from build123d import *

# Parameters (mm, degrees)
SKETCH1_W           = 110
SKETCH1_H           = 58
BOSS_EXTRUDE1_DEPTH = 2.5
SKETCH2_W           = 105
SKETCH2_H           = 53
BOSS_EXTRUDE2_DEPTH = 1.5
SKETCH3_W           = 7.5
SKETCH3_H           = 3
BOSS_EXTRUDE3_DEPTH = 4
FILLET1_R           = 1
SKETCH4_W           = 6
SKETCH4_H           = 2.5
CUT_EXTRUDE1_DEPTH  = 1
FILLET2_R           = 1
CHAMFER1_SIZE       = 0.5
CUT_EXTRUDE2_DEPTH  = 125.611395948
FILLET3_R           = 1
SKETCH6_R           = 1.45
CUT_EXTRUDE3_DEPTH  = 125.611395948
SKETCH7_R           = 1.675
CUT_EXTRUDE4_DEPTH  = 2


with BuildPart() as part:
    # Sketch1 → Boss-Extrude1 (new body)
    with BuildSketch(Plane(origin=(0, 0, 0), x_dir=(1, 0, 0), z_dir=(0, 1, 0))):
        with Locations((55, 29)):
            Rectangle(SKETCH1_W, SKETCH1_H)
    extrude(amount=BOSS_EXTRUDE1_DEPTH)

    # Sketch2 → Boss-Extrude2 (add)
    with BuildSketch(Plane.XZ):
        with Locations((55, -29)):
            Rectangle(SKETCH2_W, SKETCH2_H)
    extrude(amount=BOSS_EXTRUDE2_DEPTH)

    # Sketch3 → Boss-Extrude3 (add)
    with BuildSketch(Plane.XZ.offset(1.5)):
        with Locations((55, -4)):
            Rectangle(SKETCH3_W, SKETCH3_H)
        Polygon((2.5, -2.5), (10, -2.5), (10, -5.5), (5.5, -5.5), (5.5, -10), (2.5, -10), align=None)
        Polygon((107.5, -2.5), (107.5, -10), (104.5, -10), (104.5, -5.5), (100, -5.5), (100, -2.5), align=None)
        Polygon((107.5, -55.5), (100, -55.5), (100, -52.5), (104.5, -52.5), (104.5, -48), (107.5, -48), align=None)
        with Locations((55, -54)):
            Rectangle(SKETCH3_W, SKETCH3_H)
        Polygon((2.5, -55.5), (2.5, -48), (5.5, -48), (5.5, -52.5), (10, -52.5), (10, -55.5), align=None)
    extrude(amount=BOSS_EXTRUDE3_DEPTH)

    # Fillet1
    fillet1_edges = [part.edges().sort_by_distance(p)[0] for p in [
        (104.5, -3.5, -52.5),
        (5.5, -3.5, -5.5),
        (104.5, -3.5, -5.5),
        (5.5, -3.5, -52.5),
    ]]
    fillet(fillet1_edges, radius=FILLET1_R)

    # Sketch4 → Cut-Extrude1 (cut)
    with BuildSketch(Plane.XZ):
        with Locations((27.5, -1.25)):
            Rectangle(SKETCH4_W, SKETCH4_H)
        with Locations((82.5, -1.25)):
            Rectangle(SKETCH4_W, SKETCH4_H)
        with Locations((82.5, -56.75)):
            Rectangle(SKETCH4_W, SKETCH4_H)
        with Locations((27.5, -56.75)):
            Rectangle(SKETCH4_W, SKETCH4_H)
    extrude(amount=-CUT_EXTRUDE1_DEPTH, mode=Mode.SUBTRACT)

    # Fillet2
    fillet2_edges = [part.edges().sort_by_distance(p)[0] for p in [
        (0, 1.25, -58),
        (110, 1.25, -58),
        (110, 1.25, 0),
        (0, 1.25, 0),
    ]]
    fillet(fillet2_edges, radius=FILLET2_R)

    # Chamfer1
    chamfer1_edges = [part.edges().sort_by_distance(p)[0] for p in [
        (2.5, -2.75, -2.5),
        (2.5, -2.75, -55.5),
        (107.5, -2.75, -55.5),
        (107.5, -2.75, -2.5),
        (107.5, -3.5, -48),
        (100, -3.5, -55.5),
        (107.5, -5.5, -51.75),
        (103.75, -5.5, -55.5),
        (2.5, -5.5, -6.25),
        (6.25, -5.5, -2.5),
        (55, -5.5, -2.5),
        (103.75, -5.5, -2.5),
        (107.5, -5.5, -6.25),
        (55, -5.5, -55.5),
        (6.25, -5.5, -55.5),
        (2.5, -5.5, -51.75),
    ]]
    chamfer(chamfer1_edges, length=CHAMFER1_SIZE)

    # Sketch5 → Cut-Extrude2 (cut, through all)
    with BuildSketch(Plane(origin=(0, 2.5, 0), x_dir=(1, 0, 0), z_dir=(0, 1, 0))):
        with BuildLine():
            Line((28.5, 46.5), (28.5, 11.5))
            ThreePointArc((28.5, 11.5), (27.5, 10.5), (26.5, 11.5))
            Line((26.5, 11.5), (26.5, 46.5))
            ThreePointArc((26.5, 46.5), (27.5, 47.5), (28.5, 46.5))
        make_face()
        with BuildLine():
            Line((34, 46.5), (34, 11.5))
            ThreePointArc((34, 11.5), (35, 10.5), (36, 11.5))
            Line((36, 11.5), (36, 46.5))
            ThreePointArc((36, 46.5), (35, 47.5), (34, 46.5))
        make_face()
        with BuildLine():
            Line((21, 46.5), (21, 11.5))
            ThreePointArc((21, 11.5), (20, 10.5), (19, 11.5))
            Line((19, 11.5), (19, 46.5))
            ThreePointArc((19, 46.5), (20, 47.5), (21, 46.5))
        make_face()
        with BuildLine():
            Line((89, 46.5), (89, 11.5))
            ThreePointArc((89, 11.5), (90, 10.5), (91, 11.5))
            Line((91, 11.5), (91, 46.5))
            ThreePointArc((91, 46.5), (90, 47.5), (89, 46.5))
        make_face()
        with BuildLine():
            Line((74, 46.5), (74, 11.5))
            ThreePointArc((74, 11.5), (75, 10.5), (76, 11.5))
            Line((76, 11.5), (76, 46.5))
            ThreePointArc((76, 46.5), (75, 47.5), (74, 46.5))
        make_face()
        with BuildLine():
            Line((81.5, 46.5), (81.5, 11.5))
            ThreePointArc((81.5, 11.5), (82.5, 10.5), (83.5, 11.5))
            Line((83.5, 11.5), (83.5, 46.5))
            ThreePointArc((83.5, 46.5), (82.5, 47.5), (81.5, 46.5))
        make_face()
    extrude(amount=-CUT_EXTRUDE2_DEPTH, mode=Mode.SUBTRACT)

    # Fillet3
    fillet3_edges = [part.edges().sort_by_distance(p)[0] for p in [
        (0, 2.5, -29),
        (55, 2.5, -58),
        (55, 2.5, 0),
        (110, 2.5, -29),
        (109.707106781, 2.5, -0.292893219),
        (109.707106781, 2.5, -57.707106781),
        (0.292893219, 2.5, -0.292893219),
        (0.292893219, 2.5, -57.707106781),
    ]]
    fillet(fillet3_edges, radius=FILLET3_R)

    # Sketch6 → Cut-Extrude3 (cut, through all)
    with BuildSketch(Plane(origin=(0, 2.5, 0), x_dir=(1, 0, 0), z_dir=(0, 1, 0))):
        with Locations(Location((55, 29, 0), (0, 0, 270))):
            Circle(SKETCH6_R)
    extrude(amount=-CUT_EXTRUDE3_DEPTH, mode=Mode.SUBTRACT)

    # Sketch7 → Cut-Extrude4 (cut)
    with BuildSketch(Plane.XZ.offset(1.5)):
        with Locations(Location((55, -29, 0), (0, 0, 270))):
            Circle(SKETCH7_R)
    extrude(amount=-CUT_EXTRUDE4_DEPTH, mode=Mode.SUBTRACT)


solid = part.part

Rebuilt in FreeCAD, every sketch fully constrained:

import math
import FreeCAD as App
import Part
import Sketcher

V = App.Vector
Q = App.Units.Quantity


def edges_at(feature, points):
    """Names of the edges that pass closest to the given points."""
    edges = feature.Shape.Edges
    near = lambda p: min(range(len(edges)), key=lambda i: edges[i].distToShape(Part.Vertex(*p))[0])
    return sorted({f"Edge{near(p) + 1}" for p in points})


def add_polygon(sketch, points):
    """Adds a closed chain of lines whose ends are joined by coincident constraints."""
    first, n = sketch.GeometryCount, len(points)
    for a, b in zip(points, points[1:] + points[:1]):
        sketch.addGeometry(Part.LineSegment(App.Vector(*a, 0), App.Vector(*b, 0)), False)
    for i in range(n):
        sketch.addConstraint(Sketcher.Constraint("Coincident", first + i, 2, first + (i + 1) % n, 1))

doc = App.newDocument("Part")
body = doc.addObject("PartDesign::Body", "Body")

# Sketch on XZ plane
sketch1 = body.newObject("Sketcher::SketchObject", "Sketch")
sketch1.AttachmentSupport = (doc.getObject("XZ_Plane"), [""])
sketch1.MapMode = "FlatFace"
add_polygon(sketch1, [(0, -58), (0, 0), (110, 0), (110, -58)])  # lines 0-3
sketch1.addConstraint(Sketcher.Constraint("Vertical", 0))
sketch1.addConstraint(Sketcher.Constraint("Horizontal", 1))
sketch1.addConstraint(Sketcher.Constraint("Vertical", 2))
sketch1.addConstraint(Sketcher.Constraint("Horizontal", 3))
sketch1.addConstraint(Sketcher.Constraint("Coincident", 0, 2, -1, 1))
sketch1.addConstraint(Sketcher.Constraint("DistanceX", 1, 1, 1, 2, Q("110 mm")))
sketch1.addConstraint(Sketcher.Constraint("DistanceY", 0, 1, 0, 2, Q("58 mm")))
pad1 = body.newObject("PartDesign::Pad", "Pad")
pad1.Profile = sketch1
pad1.Length = 2.5
pad1.Reversed = True

# Sketch on XZ plane
sketch2 = body.newObject("Sketcher::SketchObject", "Sketch001")
sketch2.AttachmentSupport = (doc.getObject("XZ_Plane"), [""])
sketch2.MapMode = "FlatFace"
add_polygon(sketch2, [(2, -2), (2, -56), (108, -56), (108, -2)])  # lines 0-3
sketch2.addConstraint(Sketcher.Constraint("Vertical", 0))
sketch2.addConstraint(Sketcher.Constraint("Horizontal", 1))
sketch2.addConstraint(Sketcher.Constraint("Vertical", 2))
sketch2.addConstraint(Sketcher.Constraint("Horizontal", 3))
sketch2.addConstraint(Sketcher.Constraint("DistanceX", 1, 1, 1, 2, Q("105 mm")))
sketch2.addConstraint(Sketcher.Constraint("DistanceY", 0, 2, 0, 1, Q("53 mm")))
sketch2.addConstraint(Sketcher.Constraint("DistanceX", -1, 1, 0, 2, Q("2.5 mm")))
sketch2.addConstraint(Sketcher.Constraint("DistanceY", 0, 2, -1, 1, Q("55.5 mm")))
pad2 = body.newObject("PartDesign::Pad", "Pad001")
pad2.Profile = sketch2
pad2.Length = 1.5

# Sketch on XZ plane
sketch3 = body.newObject("Sketcher::SketchObject", "Sketch002")
sketch3.AttachmentSupport = (doc.getObject("XZ_Plane"), [""])
sketch3.MapMode = "FlatFace"
sketch3.AttachmentOffset = App.Placement(V(0, 0, 1.5), App.Rotation())
add_polygon(sketch3, [(51.2, -2.5), (51.2, -5.5), (58.8, -5.5), (58.8, -2.5)])  # lines 0-3
add_polygon(sketch3, [(10, -2.5), (2.5, -2.5), (2.5, -10), (5.5, -10), (5.5, -5.5), (10, -5.5)])  # lines 4-9
add_polygon(sketch3, [(107.5, -10), (107.5, -2.5), (100, -2.5), (100, -5.5), (104.5, -5.5), (104.5, -10)])  # lines 10-15
add_polygon(sketch3, [(100, -55.5), (107.5, -55.5), (107.5, -48), (104.5, -48), (104.5, -52.5), (100, -52.5)])  # lines 16-21
add_polygon(sketch3, [(51.2, -52.5), (51.2, -55.5), (58.8, -55.5), (58.8, -52.5)])  # lines 22-25
add_polygon(sketch3, [(2.5, -48), (2.5, -55.5), (10, -55.5), (10, -52.5), (5.5, -52.5), (5.5, -48)])  # lines 26-31
sketch3.addConstraint(Sketcher.Constraint("Vertical", 0))
sketch3.addConstraint(Sketcher.Constraint("Horizontal", 1))
sketch3.addConstraint(Sketcher.Constraint("Vertical", 2))
sketch3.addConstraint(Sketcher.Constraint("Horizontal", 3))
sketch3.addConstraint(Sketcher.Constraint("Horizontal", 4))
sketch3.addConstraint(Sketcher.Constraint("Vertical", 5))
sketch3.addConstraint(Sketcher.Constraint("Horizontal", 6))
sketch3.addConstraint(Sketcher.Constraint("Vertical", 7))
sketch3.addConstraint(Sketcher.Constraint("Horizontal", 8))
sketch3.addConstraint(Sketcher.Constraint("Vertical", 9))
sketch3.addConstraint(Sketcher.Constraint("Vertical", 10))
sketch3.addConstraint(Sketcher.Constraint("Horizontal", 11))
sketch3.addConstraint(Sketcher.Constraint("Vertical", 12))
sketch3.addConstraint(Sketcher.Constraint("Horizontal", 13))
sketch3.addConstraint(Sketcher.Constraint("Vertical", 14))
sketch3.addConstraint(Sketcher.Constraint("Horizontal", 15))
sketch3.addConstraint(Sketcher.Constraint("Horizontal", 16))
sketch3.addConstraint(Sketcher.Constraint("Vertical", 17))
sketch3.addConstraint(Sketcher.Constraint("Horizontal", 18))
sketch3.addConstraint(Sketcher.Constraint("Vertical", 19))
sketch3.addConstraint(Sketcher.Constraint("Horizontal", 20))
sketch3.addConstraint(Sketcher.Constraint("Vertical", 21))
sketch3.addConstraint(Sketcher.Constraint("Vertical", 22))
sketch3.addConstraint(Sketcher.Constraint("Horizontal", 23))
sketch3.addConstraint(Sketcher.Constraint("Vertical", 24))
sketch3.addConstraint(Sketcher.Constraint("Horizontal", 25))
sketch3.addConstraint(Sketcher.Constraint("Vertical", 26))
sketch3.addConstraint(Sketcher.Constraint("Horizontal", 27))
sketch3.addConstraint(Sketcher.Constraint("Vertical", 28))
sketch3.addConstraint(Sketcher.Constraint("Horizontal", 29))
sketch3.addConstraint(Sketcher.Constraint("Vertical", 30))
sketch3.addConstraint(Sketcher.Constraint("Horizontal", 31))
sketch3.addConstraint(Sketcher.Constraint("Horizontal", 3, 2, 4, 2))
sketch3.addConstraint(Sketcher.Constraint("Horizontal", 1, 2, 7, 2))
sketch3.addConstraint(Sketcher.Constraint("Horizontal", 9, 2, 10, 2))
sketch3.addConstraint(Sketcher.Constraint("Horizontal", 8, 2, 12, 2))
sketch3.addConstraint(Sketcher.Constraint("Horizontal", 6, 2, 14, 2))
sketch3.addConstraint(Sketcher.Constraint("Horizontal", 21, 2, 22, 2))
sketch3.addConstraint(Sketcher.Constraint("Horizontal", 20, 2, 24, 2))
sketch3.addConstraint(Sketcher.Constraint("Horizontal", 23, 2, 26, 2))
sketch3.addConstraint(Sketcher.Constraint("Horizontal", 25, 2, 28, 2))
sketch3.addConstraint(Sketcher.Constraint("Horizontal", 18, 2, 30, 2))
sketch3.addConstraint(Sketcher.Constraint("Vertical", 15, 2, 16, 2))
sketch3.addConstraint(Sketcher.Constraint("Vertical", 14, 2, 18, 2))
sketch3.addConstraint(Sketcher.Constraint("Vertical", 12, 2, 20, 2))
sketch3.addConstraint(Sketcher.Constraint("Vertical", 3, 2, 22, 2))
sketch3.addConstraint(Sketcher.Constraint("Vertical", 2, 2, 23, 2))
sketch3.addConstraint(Sketcher.Constraint("Vertical", 5, 2, 26, 2))
sketch3.addConstraint(Sketcher.Constraint("Vertical", 9, 2, 27, 2))
sketch3.addConstraint(Sketcher.Constraint("Vertical", 7, 2, 29, 2))
sketch3.addConstraint(Sketcher.Constraint("Equal", 3, 4))
sketch3.addConstraint(Sketcher.Constraint("Equal", 4, 11))
sketch3.addConstraint(Sketcher.Constraint("Equal", 8, 13))
sketch3.addConstraint(Sketcher.Constraint("Equal", 31, 0))
sketch3.addConstraint(Sketcher.Constraint("Equal", 27, 5))
sketch3.addConstraint(Sketcher.Constraint("Equal", 10, 17))
sketch3.addConstraint(Sketcher.Constraint("Equal", 14, 19))
sketch3.addConstraint(Sketcher.Constraint("DistanceX", 6, 1, 6, 2, Q("3 mm")))
sketch3.addConstraint(Sketcher.Constraint("DistanceX", 1, 1, 1, 2, Q("7.5 mm")))
sketch3.addConstraint(Sketcher.Constraint("DistanceY", 5, 2, -1, 1, Q("10 mm")))
sketch3.addConstraint(Sketcher.Constraint("DistanceX", -1, 1, 8, 2, Q("10 mm")))
sketch3.addConstraint(Sketcher.Constraint("DistanceX", -1, 1, 11, 2, Q("100 mm")))
sketch3.addConstraint(Sketcher.Constraint("DistanceY", 17, 2, -1, 1, Q("48 mm")))
sketch3.addConstraint(Sketcher.Constraint("DistanceX", -1, 1, 0, 2, Q("51.25 mm")))
pad3 = body.newObject("PartDesign::Pad", "Pad002")
pad3.Profile = sketch3
pad3.Length = 4
doc.recompute()

fillet = body.newObject("PartDesign::Fillet", "Fillet")
fillet.Base = (pad3, edges_at(pad3, [
    (104.5, -3.5, -52.5),
    (5.5, -3.5, -5.5),
    (104.5, -3.5, -5.5),
    (5.5, -3.5, -52.5),
]))
fillet.Radius = 1

# Sketch on XZ plane
sketch4 = body.newObject("Sketcher::SketchObject", "Sketch003")
sketch4.AttachmentSupport = (doc.getObject("XZ_Plane"), [""])
sketch4.MapMode = "FlatFace"
add_polygon(sketch4, [(24.5, 0), (24.5, -2.5), (30.5, -2.5), (30.5, 0)])  # lines 0-3
add_polygon(sketch4, [(79.5, 0), (79.5, -2.5), (85.5, -2.5), (85.5, 0)])  # lines 4-7
add_polygon(sketch4, [(79.5, -55.5), (79.5, -58), (85.5, -58), (85.5, -55.5)])  # lines 8-11
add_polygon(sketch4, [(24.5, -55.5), (24.5, -58), (30.5, -58), (30.5, -55.5)])  # lines 12-15
sketch4.addConstraint(Sketcher.Constraint("Vertical", 0))
sketch4.addConstraint(Sketcher.Constraint("Horizontal", 1))
sketch4.addConstraint(Sketcher.Constraint("Vertical", 2))
sketch4.addConstraint(Sketcher.Constraint("Horizontal", 3))
sketch4.addConstraint(Sketcher.Constraint("Vertical", 4))
sketch4.addConstraint(Sketcher.Constraint("Horizontal", 5))
sketch4.addConstraint(Sketcher.Constraint("Vertical", 6))
sketch4.addConstraint(Sketcher.Constraint("Horizontal", 7))
sketch4.addConstraint(Sketcher.Constraint("Vertical", 8))
sketch4.addConstraint(Sketcher.Constraint("Horizontal", 9))
sketch4.addConstraint(Sketcher.Constraint("Vertical", 10))
sketch4.addConstraint(Sketcher.Constraint("Horizontal", 11))
sketch4.addConstraint(Sketcher.Constraint("Vertical", 12))
sketch4.addConstraint(Sketcher.Constraint("Horizontal", 13))
sketch4.addConstraint(Sketcher.Constraint("Vertical", 14))
sketch4.addConstraint(Sketcher.Constraint("Horizontal", 15))
sketch4.addConstraint(Sketcher.Constraint("PointOnObject", 2, 2, -1))
sketch4.addConstraint(Sketcher.Constraint("PointOnObject", 6, 2, -1))
sketch4.addConstraint(Sketcher.Constraint("Horizontal", 1, 2, 4, 2))
sketch4.addConstraint(Sketcher.Constraint("Horizontal", 9, 2, 12, 2))
sketch4.addConstraint(Sketcher.Constraint("Horizontal", 11, 2, 14, 2))
sketch4.addConstraint(Sketcher.Constraint("Vertical", 7, 2, 8, 2))
sketch4.addConstraint(Sketcher.Constraint("Vertical", 6, 2, 9, 2))
sketch4.addConstraint(Sketcher.Constraint("Vertical", 3, 2, 12, 2))
sketch4.addConstraint(Sketcher.Constraint("Vertical", 2, 2, 13, 2))
sketch4.addConstraint(Sketcher.Constraint("Equal", 3, 5))
sketch4.addConstraint(Sketcher.Constraint("Equal", 6, 8))
sketch4.addConstraint(Sketcher.Constraint("DistanceX", 1, 1, 1, 2, Q("6 mm")))
sketch4.addConstraint(Sketcher.Constraint("DistanceY", 0, 2, 0, 1, Q("2.5 mm")))
sketch4.addConstraint(Sketcher.Constraint("DistanceY", 8, 2, -1, 1, Q("58 mm")))
sketch4.addConstraint(Sketcher.Constraint("DistanceX", 1, 2, 4, 2, Q("49 mm")))
sketch4.addConstraint(Sketcher.Constraint("DistanceX", -1, 1, 0, 2, Q("24.5 mm")))
pocket1 = body.newObject("PartDesign::Pocket", "Pocket")
pocket1.Profile = sketch4
pocket1.Length = 1
doc.recompute()

fillet2 = body.newObject("PartDesign::Fillet", "Fillet001")
fillet2.Base = (pocket1, edges_at(pocket1, [
    (0, 1.25, -58),
    (110, 1.25, -58),
    (110, 1.25, 0),
    (0, 1.25, 0),
]))
fillet2.Radius = 1
doc.recompute()

chamfer = body.newObject("PartDesign::Chamfer", "Chamfer")
chamfer.Base = (fillet2, edges_at(fillet2, [
    (2.5, -2.75, -2.5),
    (2.5, -2.75, -55.5),
    (107.5, -2.75, -55.5),
    (107.5, -2.75, -2.5),
    (107.5, -3.5, -48),
    (100, -3.5, -55.5),
    (107.5, -5.5, -51.75),
    (103.75, -5.5, -55.5),
    (2.5, -5.5, -6.25),
    (6.25, -5.5, -2.5),
    (55, -5.5, -2.5),
    (103.75, -5.5, -2.5),
    (107.5, -5.5, -6.25),
    (55, -5.5, -55.5),
    (6.25, -5.5, -55.5),
    (2.5, -5.5, -51.75),
]))
chamfer.Size = 0.5

# Sketch on XZ plane
sketch5 = body.newObject("Sketcher::SketchObject", "Sketch004")
sketch5.AttachmentSupport = (doc.getObject("XZ_Plane"), [""])
sketch5.MapMode = "FlatFace"
sketch5.AttachmentOffset = App.Placement(V(0, 0, -2.5), App.Rotation())
sketch5.addGeometry(Part.LineSegment(V(28.5, -11.5, 0), V(28.5, -46.5, 0)), False)
sketch5.addGeometry(Part.ArcOfCircle(Part.Circle(V(27.5, -46.5, 0), V(0, 0, 1), 1), math.radians(180), math.radians(360)), False)
sketch5.addGeometry(Part.LineSegment(V(26.5, -46.5, 0), V(26.5, -11.5, 0)), False)
sketch5.addGeometry(Part.ArcOfCircle(Part.Circle(V(27.5, -11.5, 0), V(0, 0, 1), 1), math.radians(0), math.radians(180)), False)
sketch5.addGeometry(Part.LineSegment(V(34, -46.5, 0), V(34, -11.5, 0)), False)
sketch5.addGeometry(Part.ArcOfCircle(Part.Circle(V(35, -11.5, 0), V(0, 0, 1), 1), math.radians(0), math.radians(180)), False)
sketch5.addGeometry(Part.LineSegment(V(36, -11.5, 0), V(36, -46.5, 0)), False)
sketch5.addGeometry(Part.ArcOfCircle(Part.Circle(V(35, -46.5, 0), V(0, 0, 1), 1), math.radians(180), math.radians(360)), False)
sketch5.addGeometry(Part.LineSegment(V(21, -11.5, 0), V(21, -46.5, 0)), False)
sketch5.addGeometry(Part.ArcOfCircle(Part.Circle(V(20, -46.5, 0), V(0, 0, 1), 1), math.radians(180), math.radians(360)), False)
sketch5.addGeometry(Part.LineSegment(V(19, -46.5, 0), V(19, -11.5, 0)), False)
sketch5.addGeometry(Part.ArcOfCircle(Part.Circle(V(20, -11.5, 0), V(0, 0, 1), 1), math.radians(0), math.radians(180)), False)
sketch5.addGeometry(Part.LineSegment(V(89, -46.5, 0), V(89, -11.5, 0)), False)
sketch5.addGeometry(Part.ArcOfCircle(Part.Circle(V(90, -11.5, 0), V(0, 0, 1), 1), math.radians(0), math.radians(180)), False)
sketch5.addGeometry(Part.LineSegment(V(91, -11.5, 0), V(91, -46.5, 0)), False)
sketch5.addGeometry(Part.ArcOfCircle(Part.Circle(V(90, -46.5, 0), V(0, 0, 1), 1), math.radians(180), math.radians(360)), False)
sketch5.addGeometry(Part.LineSegment(V(74, -46.5, 0), V(74, -11.5, 0)), False)
sketch5.addGeometry(Part.ArcOfCircle(Part.Circle(V(75, -11.5, 0), V(0, 0, 1), 1), math.radians(0), math.radians(180)), False)
sketch5.addGeometry(Part.LineSegment(V(76, -11.5, 0), V(76, -46.5, 0)), False)
sketch5.addGeometry(Part.ArcOfCircle(Part.Circle(V(75, -46.5, 0), V(0, 0, 1), 1), math.radians(180), math.radians(360)), False)
sketch5.addGeometry(Part.LineSegment(V(81.5, -46.5, 0), V(81.5, -11.5, 0)), False)
sketch5.addGeometry(Part.ArcOfCircle(Part.Circle(V(82.5, -11.5, 0), V(0, 0, 1), 1), math.radians(0), math.radians(180)), False)
sketch5.addGeometry(Part.LineSegment(V(83.5, -11.5, 0), V(83.5, -46.5, 0)), False)
sketch5.addGeometry(Part.ArcOfCircle(Part.Circle(V(82.5, -46.5, 0), V(0, 0, 1), 1), math.radians(180), math.radians(360)), False)
sketch5.addConstraint(Sketcher.Constraint("Tangent", 0, 2, 1, 2))
sketch5.addConstraint(Sketcher.Constraint("Tangent", 1, 1, 2, 1))
sketch5.addConstraint(Sketcher.Constraint("Tangent", 2, 2, 3, 2))
sketch5.addConstraint(Sketcher.Constraint("Tangent", 3, 1, 0, 1))
sketch5.addConstraint(Sketcher.Constraint("Tangent", 4, 2, 5, 2))
sketch5.addConstraint(Sketcher.Constraint("Tangent", 5, 1, 6, 1))
sketch5.addConstraint(Sketcher.Constraint("Tangent", 6, 2, 7, 2))
sketch5.addConstraint(Sketcher.Constraint("Tangent", 7, 1, 4, 1))
sketch5.addConstraint(Sketcher.Constraint("Tangent", 8, 2, 9, 2))
sketch5.addConstraint(Sketcher.Constraint("Tangent", 9, 1, 10, 1))
sketch5.addConstraint(Sketcher.Constraint("Tangent", 10, 2, 11, 2))
sketch5.addConstraint(Sketcher.Constraint("Tangent", 11, 1, 8, 1))
sketch5.addConstraint(Sketcher.Constraint("Tangent", 12, 2, 13, 2))
sketch5.addConstraint(Sketcher.Constraint("Tangent", 13, 1, 14, 1))
sketch5.addConstraint(Sketcher.Constraint("Tangent", 14, 2, 15, 2))
sketch5.addConstraint(Sketcher.Constraint("Tangent", 15, 1, 12, 1))
sketch5.addConstraint(Sketcher.Constraint("Tangent", 16, 2, 17, 2))
sketch5.addConstraint(Sketcher.Constraint("Tangent", 17, 1, 18, 1))
sketch5.addConstraint(Sketcher.Constraint("Tangent", 18, 2, 19, 2))
sketch5.addConstraint(Sketcher.Constraint("Tangent", 19, 1, 16, 1))
sketch5.addConstraint(Sketcher.Constraint("Tangent", 20, 2, 21, 2))
sketch5.addConstraint(Sketcher.Constraint("Tangent", 21, 1, 22, 1))
sketch5.addConstraint(Sketcher.Constraint("Tangent", 22, 2, 23, 2))
sketch5.addConstraint(Sketcher.Constraint("Tangent", 23, 1, 20, 1))
sketch5.addConstraint(Sketcher.Constraint("Vertical", 0))
sketch5.addConstraint(Sketcher.Constraint("Vertical", 2))
sketch5.addConstraint(Sketcher.Constraint("Vertical", 4))
sketch5.addConstraint(Sketcher.Constraint("Vertical", 6))
sketch5.addConstraint(Sketcher.Constraint("Vertical", 8))
sketch5.addConstraint(Sketcher.Constraint("Vertical", 10))
sketch5.addConstraint(Sketcher.Constraint("Vertical", 12))
sketch5.addConstraint(Sketcher.Constraint("Vertical", 14))
sketch5.addConstraint(Sketcher.Constraint("Vertical", 16))
sketch5.addConstraint(Sketcher.Constraint("Vertical", 18))
sketch5.addConstraint(Sketcher.Constraint("Vertical", 20))
sketch5.addConstraint(Sketcher.Constraint("Vertical", 22))
sketch5.addConstraint(Sketcher.Constraint("Equal", 3, 5))
sketch5.addConstraint(Sketcher.Constraint("Equal", 7, 9))
sketch5.addConstraint(Sketcher.Constraint("Equal", 11, 13))
sketch5.addConstraint(Sketcher.Constraint("Equal", 15, 17))
sketch5.addConstraint(Sketcher.Constraint("Equal", 19, 21))
sketch5.addConstraint(Sketcher.Constraint("Horizontal", 3, 3, 5, 3))
sketch5.addConstraint(Sketcher.Constraint("Horizontal", 1, 3, 7, 3))
sketch5.addConstraint(Sketcher.Constraint("Horizontal", 7, 3, 9, 3))
sketch5.addConstraint(Sketcher.Constraint("Horizontal", 5, 3, 11, 3))
sketch5.addConstraint(Sketcher.Constraint("Horizontal", 11, 3, 13, 3))
sketch5.addConstraint(Sketcher.Constraint("Horizontal", 9, 3, 15, 3))
sketch5.addConstraint(Sketcher.Constraint("Horizontal", 13, 3, 17, 3))
sketch5.addConstraint(Sketcher.Constraint("Horizontal", 15, 3, 19, 3))
sketch5.addConstraint(Sketcher.Constraint("Horizontal", 17, 3, 21, 3))
sketch5.addConstraint(Sketcher.Constraint("Horizontal", 19, 3, 23, 3))
sketch5.addConstraint(Sketcher.Constraint("Radius", 1, Q("1 mm")))
sketch5.addConstraint(Sketcher.Constraint("DistanceY", 0, 2, 0, 1, Q("35 mm")))
sketch5.addConstraint(Sketcher.Constraint("DistanceX", -1, 1, 5, 3, Q("35 mm")))
sketch5.addConstraint(Sketcher.Constraint("DistanceX", -1, 1, 9, 3, Q("20 mm")))
sketch5.addConstraint(Sketcher.Constraint("DistanceX", -1, 1, 13, 3, Q("90 mm")))
sketch5.addConstraint(Sketcher.Constraint("DistanceX", -1, 1, 17, 3, Q("75 mm")))
sketch5.addConstraint(Sketcher.Constraint("DistanceX", -1, 1, 1, 3, Q("27.5 mm")))
sketch5.addConstraint(Sketcher.Constraint("DistanceY", 1, 3, -1, 1, Q("46.5 mm")))
sketch5.addConstraint(Sketcher.Constraint("DistanceX", -1, 1, 21, 3, Q("82.5 mm")))
pocket2 = body.newObject("PartDesign::Pocket", "Pocket001")
pocket2.Profile = sketch5
pocket2.Type = "ThroughAll"
pocket2.Reversed = True
doc.recompute()

fillet3 = body.newObject("PartDesign::Fillet", "Fillet002")
fillet3.Base = (pocket2, edges_at(pocket2, [
    (0, 2.5, -29),
    (55, 2.5, -58),
    (55, 2.5, 0),
    (110, 2.5, -29),
    (109.707, 2.5, -0.293),
    (109.707, 2.5, -57.707),
    (0.293, 2.5, -0.293),
    (0.293, 2.5, -57.707),
]))
fillet3.Radius = 1

# Sketch on XZ plane
sketch6 = body.newObject("Sketcher::SketchObject", "Sketch005")
sketch6.AttachmentSupport = (doc.getObject("XZ_Plane"), [""])
sketch6.MapMode = "FlatFace"
sketch6.AttachmentOffset = App.Placement(V(0, 0, -2.5), App.Rotation())
sketch6.addGeometry(Part.Circle(V(55, -29, 0), V(0, 0, 1), 1.4), False)
sketch6.addConstraint(Sketcher.Constraint("Diameter", 0, Q("2.9 mm")))
sketch6.addConstraint(Sketcher.Constraint("DistanceX", -1, 1, 0, 3, Q("55 mm")))
sketch6.addConstraint(Sketcher.Constraint("DistanceY", 0, 3, -1, 1, Q("29 mm")))
pocket3 = body.newObject("PartDesign::Pocket", "Pocket002")
pocket3.Profile = sketch6
pocket3.Type = "ThroughAll"
pocket3.Reversed = True

# Sketch on XZ plane
sketch7 = body.newObject("Sketcher::SketchObject", "Sketch006")
sketch7.AttachmentSupport = (doc.getObject("XZ_Plane"), [""])
sketch7.MapMode = "FlatFace"
sketch7.AttachmentOffset = App.Placement(V(0, 0, 1.5), App.Rotation())
sketch7.addGeometry(Part.Circle(V(55, -29, 0), V(0, 0, 1), 1.7), False)
sketch7.addConstraint(Sketcher.Constraint("Diameter", 0, Q("3.35 mm")))
sketch7.addConstraint(Sketcher.Constraint("DistanceX", -1, 1, 0, 3, Q("55 mm")))
sketch7.addConstraint(Sketcher.Constraint("DistanceY", 0, 3, -1, 1, Q("29 mm")))
pocket4 = body.newObject("PartDesign::Pocket", "Pocket003")
pocket4.Profile = sketch7
pocket4.Length = 2

doc.recompute()
